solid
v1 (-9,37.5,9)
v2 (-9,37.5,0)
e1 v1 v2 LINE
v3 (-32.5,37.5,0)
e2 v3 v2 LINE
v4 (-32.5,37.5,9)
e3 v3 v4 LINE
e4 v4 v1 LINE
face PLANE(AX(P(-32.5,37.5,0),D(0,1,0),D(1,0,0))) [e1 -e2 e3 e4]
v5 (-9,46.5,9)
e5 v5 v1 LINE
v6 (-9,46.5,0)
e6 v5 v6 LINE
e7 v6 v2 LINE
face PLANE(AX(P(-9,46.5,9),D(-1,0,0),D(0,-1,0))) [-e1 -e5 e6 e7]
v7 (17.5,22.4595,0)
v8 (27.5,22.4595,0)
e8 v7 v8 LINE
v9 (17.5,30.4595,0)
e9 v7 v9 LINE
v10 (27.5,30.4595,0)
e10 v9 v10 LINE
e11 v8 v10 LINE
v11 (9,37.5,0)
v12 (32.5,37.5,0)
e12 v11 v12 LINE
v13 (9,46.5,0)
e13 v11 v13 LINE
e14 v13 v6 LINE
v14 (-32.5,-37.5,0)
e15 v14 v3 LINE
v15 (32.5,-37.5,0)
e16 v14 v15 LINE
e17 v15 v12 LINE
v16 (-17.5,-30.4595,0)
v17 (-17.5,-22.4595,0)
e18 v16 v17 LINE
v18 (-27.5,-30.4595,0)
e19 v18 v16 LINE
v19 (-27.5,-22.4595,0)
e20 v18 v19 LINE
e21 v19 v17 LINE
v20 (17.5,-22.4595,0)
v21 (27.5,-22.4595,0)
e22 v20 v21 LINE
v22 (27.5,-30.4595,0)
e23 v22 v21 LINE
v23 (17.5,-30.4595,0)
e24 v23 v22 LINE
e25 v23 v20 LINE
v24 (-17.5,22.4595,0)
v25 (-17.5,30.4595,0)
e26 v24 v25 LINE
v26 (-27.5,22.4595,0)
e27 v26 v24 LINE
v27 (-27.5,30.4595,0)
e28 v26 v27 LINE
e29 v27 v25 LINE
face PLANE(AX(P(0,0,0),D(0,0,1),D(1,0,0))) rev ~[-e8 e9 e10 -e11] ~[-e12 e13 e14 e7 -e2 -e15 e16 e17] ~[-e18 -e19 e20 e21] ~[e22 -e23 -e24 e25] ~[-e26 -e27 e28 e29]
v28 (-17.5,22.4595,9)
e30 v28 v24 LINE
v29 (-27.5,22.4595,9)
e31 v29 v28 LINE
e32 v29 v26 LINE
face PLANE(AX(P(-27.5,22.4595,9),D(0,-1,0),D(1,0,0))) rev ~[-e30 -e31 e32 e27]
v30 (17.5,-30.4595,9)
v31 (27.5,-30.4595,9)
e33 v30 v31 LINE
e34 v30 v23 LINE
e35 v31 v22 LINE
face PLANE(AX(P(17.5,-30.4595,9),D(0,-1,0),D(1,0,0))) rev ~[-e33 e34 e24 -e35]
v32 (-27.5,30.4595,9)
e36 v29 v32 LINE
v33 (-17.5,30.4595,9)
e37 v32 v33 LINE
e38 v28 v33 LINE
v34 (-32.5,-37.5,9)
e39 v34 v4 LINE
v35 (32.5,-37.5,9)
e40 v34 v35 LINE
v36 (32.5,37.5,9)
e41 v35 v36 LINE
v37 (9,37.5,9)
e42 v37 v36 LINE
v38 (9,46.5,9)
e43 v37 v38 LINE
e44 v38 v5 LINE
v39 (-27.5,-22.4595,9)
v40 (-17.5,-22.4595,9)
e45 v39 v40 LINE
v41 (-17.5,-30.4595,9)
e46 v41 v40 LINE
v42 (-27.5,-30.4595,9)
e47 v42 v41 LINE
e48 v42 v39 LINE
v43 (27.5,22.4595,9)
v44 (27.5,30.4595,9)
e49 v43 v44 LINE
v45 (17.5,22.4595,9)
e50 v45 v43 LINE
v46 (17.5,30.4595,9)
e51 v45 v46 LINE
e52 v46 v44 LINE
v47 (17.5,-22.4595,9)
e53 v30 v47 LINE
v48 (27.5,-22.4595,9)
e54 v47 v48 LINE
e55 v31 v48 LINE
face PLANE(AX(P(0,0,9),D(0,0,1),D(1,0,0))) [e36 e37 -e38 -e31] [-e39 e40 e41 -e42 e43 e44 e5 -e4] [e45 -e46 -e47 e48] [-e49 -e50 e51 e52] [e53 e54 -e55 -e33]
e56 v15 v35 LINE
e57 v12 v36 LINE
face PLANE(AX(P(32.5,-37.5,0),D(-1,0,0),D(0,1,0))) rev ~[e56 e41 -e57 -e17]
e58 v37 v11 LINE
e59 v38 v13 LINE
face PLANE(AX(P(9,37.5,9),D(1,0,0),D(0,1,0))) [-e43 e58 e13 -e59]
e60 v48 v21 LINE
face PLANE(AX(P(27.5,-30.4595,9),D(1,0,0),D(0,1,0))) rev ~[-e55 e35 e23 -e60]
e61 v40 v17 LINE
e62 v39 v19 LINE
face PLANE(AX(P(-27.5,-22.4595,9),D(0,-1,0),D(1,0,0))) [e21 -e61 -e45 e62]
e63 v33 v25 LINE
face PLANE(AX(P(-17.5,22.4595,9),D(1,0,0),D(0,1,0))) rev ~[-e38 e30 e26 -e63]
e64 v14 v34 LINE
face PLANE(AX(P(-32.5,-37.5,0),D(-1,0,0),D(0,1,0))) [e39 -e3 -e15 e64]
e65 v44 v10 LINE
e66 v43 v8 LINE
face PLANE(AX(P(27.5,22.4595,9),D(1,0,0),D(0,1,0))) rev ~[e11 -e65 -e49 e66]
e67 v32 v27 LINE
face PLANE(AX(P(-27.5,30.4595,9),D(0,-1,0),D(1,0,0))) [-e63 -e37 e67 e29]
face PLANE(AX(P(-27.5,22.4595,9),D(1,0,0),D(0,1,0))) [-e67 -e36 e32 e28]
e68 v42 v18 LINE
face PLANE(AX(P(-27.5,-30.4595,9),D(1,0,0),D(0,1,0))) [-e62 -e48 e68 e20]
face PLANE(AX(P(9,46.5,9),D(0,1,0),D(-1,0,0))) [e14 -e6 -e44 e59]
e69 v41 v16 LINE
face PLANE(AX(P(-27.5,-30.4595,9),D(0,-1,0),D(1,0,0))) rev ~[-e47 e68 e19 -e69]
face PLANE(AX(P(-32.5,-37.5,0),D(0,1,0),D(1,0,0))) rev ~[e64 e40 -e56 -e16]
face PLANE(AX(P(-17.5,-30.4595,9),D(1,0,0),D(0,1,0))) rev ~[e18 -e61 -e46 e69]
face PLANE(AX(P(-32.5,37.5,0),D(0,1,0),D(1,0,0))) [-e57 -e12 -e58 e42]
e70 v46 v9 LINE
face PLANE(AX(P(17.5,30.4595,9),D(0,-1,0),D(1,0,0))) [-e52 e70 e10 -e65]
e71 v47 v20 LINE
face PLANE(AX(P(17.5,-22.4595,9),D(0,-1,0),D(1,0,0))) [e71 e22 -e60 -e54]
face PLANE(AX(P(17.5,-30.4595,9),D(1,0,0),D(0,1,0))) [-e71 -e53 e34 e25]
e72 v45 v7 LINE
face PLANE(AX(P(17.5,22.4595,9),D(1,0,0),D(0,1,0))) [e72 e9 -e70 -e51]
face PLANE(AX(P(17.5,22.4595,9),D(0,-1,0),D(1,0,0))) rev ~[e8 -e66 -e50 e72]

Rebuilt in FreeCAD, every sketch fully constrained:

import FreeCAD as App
import Part
import Sketcher
from FreeCAD import Vector


def add_polygon(sketch, points):
    """Adds a closed chain of lines whose ends are joined by coincident constraints."""
    first, n = sketch.GeometryCount, len(points)
    for a, b in zip(points, points[1:] + points[:1]):
        sketch.addGeometry(Part.LineSegment(App.Vector(*a, 0), App.Vector(*b, 0)), False)
    for i in range(n):
        sketch.addConstraint(Sketcher.Constraint("Coincident", first + i, 2, first + (i + 1) % n, 1))

doc = App.newDocument("Part")
params = doc.addObject("Spreadsheet::Sheet", "Params")
for row, (alias, value) in enumerate([
    ("sketch1_width", "65 mm"),
    ("sketch1_height", "75 mm"),
    ("pad1_length", "9 mm"),
    ("sketch2_width", "18 mm"),
    ("sketch2_height", "9 mm"),
    ("pad2_length", "9 mm"),
    ("sketch3_width", "10 mm"),
    ("sketch3_height", "8 mm"),
], start=1):
    params.set(f"A{row}", alias)
    params.set(f"B{row}", "=" + value)
    params.setAlias(f"B{row}", alias)

body = doc.addObject("PartDesign::Body", "Body")

# Sketch on XY plane
sketch1 = body.newObject("Sketcher::SketchObject", "Sketch")
sketch1.AttachmentSupport = (doc.getObject("XY_Plane"), [""])
sketch1.MapMode = "FlatFace"
add_polygon(sketch1, [(-32.5, 37.5), (-32.5, -37.5), (32.5, -37.5), (32.5, 37.5)])  # lines 0-3
sketch1.addConstraint(Sketcher.Constraint("Vertical", 0))
sketch1.addConstraint(Sketcher.Constraint("Horizontal", 1))
sketch1.addConstraint(Sketcher.Constraint("Vertical", 2))
sketch1.addConstraint(Sketcher.Constraint("Horizontal", 3))
sketch1.addConstraint(Sketcher.Constraint("Symmetric", 0, 2, 2, 2, -1, 1))
sketch1.addConstraint(Sketcher.Constraint("DistanceX", 1, 1, 1, 2, 65.0))
sketch1.addConstraint(Sketcher.Constraint("DistanceY", 0, 2, 0, 1, 75.0))
sketch1.setExpression("Constraints[9]", "Params.sketch1_width")
sketch1.setExpression("Constraints[10]", "Params.sketch1_height")
pad1 = body.newObject("PartDesign::Pad", "Pad")
pad1.Profile = sketch1
pad1.setExpression("Length", "Params.pad1_length")

# Sketch on XY plane
sketch2 = body.newObject("Sketcher::SketchObject", "Sketch001")
sketch2.AttachmentSupport = (doc.getObject("XY_Plane"), [""])
sketch2.MapMode = "FlatFace"
sketch2.AttachmentOffset = App.Placement(Vector(0, 0, 9), App.Rotation())
add_polygon(sketch2, [(9, 46.5), (-9, 46.5), (-9, 37.5), (9, 37.5)])  # lines 0-3
sketch2.addConstraint(Sketcher.Constraint("Horizontal", 0))
sketch2.addConstraint(Sketcher.Constraint("Vertical", 1))
sketch2.addConstraint(Sketcher.Constraint("Horizontal", 2))
sketch2.addConstraint(Sketcher.Constraint("Vertical", 3))
sketch2.addConstraint(Sketcher.Constraint("DistanceX", 0, 2, 0, 1, 18.0))
sketch2.addConstraint(Sketcher.Constraint("DistanceY", 1, 2, 1, 1, 9.0))
sketch2.addConstraint(Sketcher.Constraint("DistanceX", 0, 2, -1, 1, 9.0))
sketch2.addConstraint(Sketcher.Constraint("DistanceY", -1, 1, 0, 2, 46.5))
sketch2.setExpression("Constraints[8]", "Params.sketch2_width")
sketch2.setExpression("Constraints[9]", "Params.sketch2_height")
pad2 = body.newObject("PartDesign::Pad", "Pad001")
pad2.Profile = sketch2
pad2.setExpression("Length", "Params.pad2_length")
pad2.Reversed = True

# Sketch on XY plane
sketch3 = body.newObject("Sketcher::SketchObject", "Sketch002")
sketch3.AttachmentSupport = (doc.getObject("XY_Plane"), [""])
sketch3.MapMode = "FlatFace"
sketch3.AttachmentOffset = App.Placement(Vector(0, 0, 9), App.Rotation())
add_polygon(sketch3, [(-27.5, 30.4595), (-27.5, 22.4595), (-17.5, 22.4595), (-17.5, 30.4595)])  # lines 0-3
add_polygon(sketch3, [(17.5, 30.4595), (17.5, 22.4595), (27.5, 22.4595), (27.5, 30.4595)])  # lines 4-7
add_polygon(sketch3, [(17.5, -22.4595), (17.5, -30.4595), (27.5, -30.4595), (27.5, -22.4595)])  # lines 8-11
add_polygon(sketch3, [(-27.5, -22.4595), (-27.5, -30.4595), (-17.5, -30.4595), (-17.5, -22.4595)])  # lines 12-15
sketch3.addConstraint(Sketcher.Constraint("Vertical", 0))
sketch3.addConstraint(Sketcher.Constraint("Horizontal", 1))
sketch3.addConstraint(Sketcher.Constraint("Vertical", 2))
sketch3.addConstraint(Sketcher.Constraint("Horizontal", 3))
sketch3.addConstraint(Sketcher.Constraint("Vertical", 4))
sketch3.addConstraint(Sketcher.Constraint("Horizontal", 5))
sketch3.addConstraint(Sketcher.Constraint("Vertical", 6))
sketch3.addConstraint(Sketcher.Constraint("Horizontal", 7))
sketch3.addConstraint(Sketcher.Constraint("Vertical", 8))
sketch3.addConstraint(Sketcher.Constraint("Horizontal", 9))
sketch3.addConstraint(Sketcher.Constraint("Vertical", 10))
sketch3.addConstraint(Sketcher.Constraint("Horizontal", 11))
sketch3.addConstraint(Sketcher.Constraint("Vertical", 12))
sketch3.addConstraint(Sketcher.Constraint("Horizontal", 13))
sketch3.addConstraint(Sketcher.Constraint("Vertical", 14))
sketch3.addConstraint(Sketcher.Constraint("Horizontal", 15))
sketch3.addConstraint(Sketcher.Constraint("Symmetric", 2, 2, 8, 2, -1, 1))
sketch3.addConstraint(Sketcher.Constraint("Symmetric", 0, 2, 10, 2, -1, 1))
sketch3.addConstraint(Sketcher.Constraint("Symmetric", 6, 2, 12, 2, -1, 1))
sketch3.addConstraint(Sketcher.Constraint("Symmetric", 4, 2, 14, 2, -1, 1))
sketch3.addConstraint(Sketcher.Constraint("Symmetric", 1, 2, 4, 2, -2))
sketch3.addConstraint(Sketcher.Constraint("Symmetric", 3, 2, 6, 2, -2))
sketch3.addConstraint(Sketcher.Constraint("DistanceX", 1, 1, 1, 2, 10.0))
sketch3.addConstraint(Sketcher.Constraint("DistanceY", 0, 2, 0, 1, 8.0))
sketch3.addConstraint(Sketcher.Constraint("DistanceX", 1, 2, 4, 2, 35.0))
sketch3.addConstraint(Sketcher.Constraint("DistanceY", 8, 2, 4, 2, 52.919))
sketch3.setExpression("Constraints[38]", "Params.sketch3_width")
sketch3.setExpression("Constraints[39]", "Params.sketch3_height")
pocket1 = body.newObject("PartDesign::Pocket", "Pocket")
pocket1.Profile = sketch3
pocket1.Type = "ThroughAll"

doc.recompute()
